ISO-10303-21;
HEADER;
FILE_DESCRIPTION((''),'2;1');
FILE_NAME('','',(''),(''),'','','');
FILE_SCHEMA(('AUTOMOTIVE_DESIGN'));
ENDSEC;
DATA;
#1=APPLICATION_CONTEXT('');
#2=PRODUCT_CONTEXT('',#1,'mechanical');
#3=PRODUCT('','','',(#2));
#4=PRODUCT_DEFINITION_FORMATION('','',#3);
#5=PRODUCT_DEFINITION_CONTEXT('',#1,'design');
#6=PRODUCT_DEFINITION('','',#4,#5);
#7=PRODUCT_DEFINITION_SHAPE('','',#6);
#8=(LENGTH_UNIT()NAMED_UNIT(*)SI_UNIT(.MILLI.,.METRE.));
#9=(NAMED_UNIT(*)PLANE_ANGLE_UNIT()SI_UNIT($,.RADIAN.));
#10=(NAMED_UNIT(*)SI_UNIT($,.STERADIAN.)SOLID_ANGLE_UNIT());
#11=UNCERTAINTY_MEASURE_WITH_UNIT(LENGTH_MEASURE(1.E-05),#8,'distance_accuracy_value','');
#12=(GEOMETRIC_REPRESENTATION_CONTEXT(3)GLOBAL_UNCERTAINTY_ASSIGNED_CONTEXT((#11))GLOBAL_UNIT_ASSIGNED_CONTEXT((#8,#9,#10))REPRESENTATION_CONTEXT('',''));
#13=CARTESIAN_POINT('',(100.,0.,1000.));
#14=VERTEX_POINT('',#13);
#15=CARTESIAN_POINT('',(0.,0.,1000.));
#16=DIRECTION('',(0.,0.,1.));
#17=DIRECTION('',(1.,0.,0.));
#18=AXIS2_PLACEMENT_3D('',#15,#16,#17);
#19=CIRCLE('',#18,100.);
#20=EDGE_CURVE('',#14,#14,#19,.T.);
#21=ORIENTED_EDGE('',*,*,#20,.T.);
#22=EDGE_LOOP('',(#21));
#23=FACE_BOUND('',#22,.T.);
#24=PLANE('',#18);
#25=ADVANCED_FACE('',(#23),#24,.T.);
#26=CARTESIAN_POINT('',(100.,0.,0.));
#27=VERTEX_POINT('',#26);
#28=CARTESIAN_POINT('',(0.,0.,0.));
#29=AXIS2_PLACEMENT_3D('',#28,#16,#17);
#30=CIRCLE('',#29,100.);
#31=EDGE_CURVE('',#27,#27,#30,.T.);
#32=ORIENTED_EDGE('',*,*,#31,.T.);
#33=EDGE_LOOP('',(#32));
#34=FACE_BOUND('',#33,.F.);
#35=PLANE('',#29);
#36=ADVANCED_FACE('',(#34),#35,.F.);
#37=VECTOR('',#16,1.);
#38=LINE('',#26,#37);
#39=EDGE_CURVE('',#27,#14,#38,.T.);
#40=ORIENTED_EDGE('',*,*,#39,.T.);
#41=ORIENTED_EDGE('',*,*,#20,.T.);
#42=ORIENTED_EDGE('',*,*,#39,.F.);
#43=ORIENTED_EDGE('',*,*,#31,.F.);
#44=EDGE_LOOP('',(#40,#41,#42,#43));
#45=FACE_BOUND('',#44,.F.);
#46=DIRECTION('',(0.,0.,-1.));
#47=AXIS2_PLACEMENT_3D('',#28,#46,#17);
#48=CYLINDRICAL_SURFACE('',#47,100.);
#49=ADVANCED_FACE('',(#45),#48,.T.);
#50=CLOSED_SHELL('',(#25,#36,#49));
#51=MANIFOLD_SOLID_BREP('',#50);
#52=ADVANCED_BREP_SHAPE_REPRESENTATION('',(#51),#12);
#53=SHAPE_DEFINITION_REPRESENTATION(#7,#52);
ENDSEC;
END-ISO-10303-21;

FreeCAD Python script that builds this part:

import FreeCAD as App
import Part
import Sketcher
Q = App.Units.Quantity

doc = App.newDocument("Part")
body = doc.addObject("PartDesign::Body", "Body")

# Sketch on XY plane
sketch1 = body.newObject("Sketcher::SketchObject", "Sketch")
sketch1.AttachmentSupport = (doc.getObject("XY_Plane"), [""])
sketch1.MapMode = "FlatFace"
sketch1.addGeometry(Part.Circle(App.Vector(0, 0, 0), App.Vector(0, 0, 1), 100), False)
sketch1.addConstraint([
    Sketcher.Constraint("Coincident", 0, 3, -1, 1),
    Sketcher.Constraint("Diameter", 0, Q("200 mm")),
])
pad1 = body.newObject("PartDesign::Pad", "Pad")
pad1.Profile = sketch1
pad1.Length = 1000

doc.recompute()
